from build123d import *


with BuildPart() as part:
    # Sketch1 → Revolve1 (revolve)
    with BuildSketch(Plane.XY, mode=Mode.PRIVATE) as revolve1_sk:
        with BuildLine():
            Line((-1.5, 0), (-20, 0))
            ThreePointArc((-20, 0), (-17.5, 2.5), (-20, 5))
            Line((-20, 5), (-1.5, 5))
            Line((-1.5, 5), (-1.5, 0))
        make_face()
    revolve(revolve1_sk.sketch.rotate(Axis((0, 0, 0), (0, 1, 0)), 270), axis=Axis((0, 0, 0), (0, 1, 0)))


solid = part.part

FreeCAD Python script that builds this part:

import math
import FreeCAD as App
import Part
import Sketcher
from FreeCAD import Vector

doc = App.newDocument("Part")
body = doc.addObject("PartDesign::Body", "Body")

# Sketch on XY plane
sketch1 = body.newObject("Sketcher::SketchObject", "Sketch")
sketch1.AttachmentSupport = (doc.getObject("XY_Plane"), [""])
sketch1.MapMode = "FlatFace"
sketch1.addGeometry([
    Part.LineSegment(Vector(-20, 0, 0), Vector(-1.5, 0, 0)),
    Part.LineSegment(Vector(-1.5, 0, 0), Vector(-1.5, 5, 0)),
    Part.LineSegment(Vector(-1.5, 5, 0), Vector(-20, 5, 0)),
    Part.ArcOfCircle(Part.Circle(Vector(-20, 2.5, 0), Vector(0, 0, 1), 2.5), math.radians(-90), math.radians(90)),
], False)
sketch1.addConstraint([
    Sketcher.Constraint("Coincident", 0, 2, 1, 1),
    Sketcher.Constraint("Coincident", 1, 2, 2, 1),
    Sketcher.Constraint("Tangent", 2, 2, 3, 2),
    Sketcher.Constraint("Tangent", 3, 1, 0, 1),
    Sketcher.Constraint("Horizontal", 0),
    Sketcher.Constraint("Vertical", 1),
    Sketcher.Constraint("Horizontal", 2),
    Sketcher.Constraint("PointOnObject", 0, 2, -1),
    Sketcher.Constraint("Radius", 3, 2.5),
    Sketcher.Constraint("DistanceX", 0, 1, 0, 2, 18.5),
    Sketcher.Constraint("DistanceX", 3, 3, -1, 1, 20.0),
])
revolution = body.newObject("PartDesign::Revolution", "Revolution")
revolution.Profile = sketch1
revolution.ReferenceAxis = (sketch1, ["V_Axis"])
revolution.Angle = 360

doc.recompute()
